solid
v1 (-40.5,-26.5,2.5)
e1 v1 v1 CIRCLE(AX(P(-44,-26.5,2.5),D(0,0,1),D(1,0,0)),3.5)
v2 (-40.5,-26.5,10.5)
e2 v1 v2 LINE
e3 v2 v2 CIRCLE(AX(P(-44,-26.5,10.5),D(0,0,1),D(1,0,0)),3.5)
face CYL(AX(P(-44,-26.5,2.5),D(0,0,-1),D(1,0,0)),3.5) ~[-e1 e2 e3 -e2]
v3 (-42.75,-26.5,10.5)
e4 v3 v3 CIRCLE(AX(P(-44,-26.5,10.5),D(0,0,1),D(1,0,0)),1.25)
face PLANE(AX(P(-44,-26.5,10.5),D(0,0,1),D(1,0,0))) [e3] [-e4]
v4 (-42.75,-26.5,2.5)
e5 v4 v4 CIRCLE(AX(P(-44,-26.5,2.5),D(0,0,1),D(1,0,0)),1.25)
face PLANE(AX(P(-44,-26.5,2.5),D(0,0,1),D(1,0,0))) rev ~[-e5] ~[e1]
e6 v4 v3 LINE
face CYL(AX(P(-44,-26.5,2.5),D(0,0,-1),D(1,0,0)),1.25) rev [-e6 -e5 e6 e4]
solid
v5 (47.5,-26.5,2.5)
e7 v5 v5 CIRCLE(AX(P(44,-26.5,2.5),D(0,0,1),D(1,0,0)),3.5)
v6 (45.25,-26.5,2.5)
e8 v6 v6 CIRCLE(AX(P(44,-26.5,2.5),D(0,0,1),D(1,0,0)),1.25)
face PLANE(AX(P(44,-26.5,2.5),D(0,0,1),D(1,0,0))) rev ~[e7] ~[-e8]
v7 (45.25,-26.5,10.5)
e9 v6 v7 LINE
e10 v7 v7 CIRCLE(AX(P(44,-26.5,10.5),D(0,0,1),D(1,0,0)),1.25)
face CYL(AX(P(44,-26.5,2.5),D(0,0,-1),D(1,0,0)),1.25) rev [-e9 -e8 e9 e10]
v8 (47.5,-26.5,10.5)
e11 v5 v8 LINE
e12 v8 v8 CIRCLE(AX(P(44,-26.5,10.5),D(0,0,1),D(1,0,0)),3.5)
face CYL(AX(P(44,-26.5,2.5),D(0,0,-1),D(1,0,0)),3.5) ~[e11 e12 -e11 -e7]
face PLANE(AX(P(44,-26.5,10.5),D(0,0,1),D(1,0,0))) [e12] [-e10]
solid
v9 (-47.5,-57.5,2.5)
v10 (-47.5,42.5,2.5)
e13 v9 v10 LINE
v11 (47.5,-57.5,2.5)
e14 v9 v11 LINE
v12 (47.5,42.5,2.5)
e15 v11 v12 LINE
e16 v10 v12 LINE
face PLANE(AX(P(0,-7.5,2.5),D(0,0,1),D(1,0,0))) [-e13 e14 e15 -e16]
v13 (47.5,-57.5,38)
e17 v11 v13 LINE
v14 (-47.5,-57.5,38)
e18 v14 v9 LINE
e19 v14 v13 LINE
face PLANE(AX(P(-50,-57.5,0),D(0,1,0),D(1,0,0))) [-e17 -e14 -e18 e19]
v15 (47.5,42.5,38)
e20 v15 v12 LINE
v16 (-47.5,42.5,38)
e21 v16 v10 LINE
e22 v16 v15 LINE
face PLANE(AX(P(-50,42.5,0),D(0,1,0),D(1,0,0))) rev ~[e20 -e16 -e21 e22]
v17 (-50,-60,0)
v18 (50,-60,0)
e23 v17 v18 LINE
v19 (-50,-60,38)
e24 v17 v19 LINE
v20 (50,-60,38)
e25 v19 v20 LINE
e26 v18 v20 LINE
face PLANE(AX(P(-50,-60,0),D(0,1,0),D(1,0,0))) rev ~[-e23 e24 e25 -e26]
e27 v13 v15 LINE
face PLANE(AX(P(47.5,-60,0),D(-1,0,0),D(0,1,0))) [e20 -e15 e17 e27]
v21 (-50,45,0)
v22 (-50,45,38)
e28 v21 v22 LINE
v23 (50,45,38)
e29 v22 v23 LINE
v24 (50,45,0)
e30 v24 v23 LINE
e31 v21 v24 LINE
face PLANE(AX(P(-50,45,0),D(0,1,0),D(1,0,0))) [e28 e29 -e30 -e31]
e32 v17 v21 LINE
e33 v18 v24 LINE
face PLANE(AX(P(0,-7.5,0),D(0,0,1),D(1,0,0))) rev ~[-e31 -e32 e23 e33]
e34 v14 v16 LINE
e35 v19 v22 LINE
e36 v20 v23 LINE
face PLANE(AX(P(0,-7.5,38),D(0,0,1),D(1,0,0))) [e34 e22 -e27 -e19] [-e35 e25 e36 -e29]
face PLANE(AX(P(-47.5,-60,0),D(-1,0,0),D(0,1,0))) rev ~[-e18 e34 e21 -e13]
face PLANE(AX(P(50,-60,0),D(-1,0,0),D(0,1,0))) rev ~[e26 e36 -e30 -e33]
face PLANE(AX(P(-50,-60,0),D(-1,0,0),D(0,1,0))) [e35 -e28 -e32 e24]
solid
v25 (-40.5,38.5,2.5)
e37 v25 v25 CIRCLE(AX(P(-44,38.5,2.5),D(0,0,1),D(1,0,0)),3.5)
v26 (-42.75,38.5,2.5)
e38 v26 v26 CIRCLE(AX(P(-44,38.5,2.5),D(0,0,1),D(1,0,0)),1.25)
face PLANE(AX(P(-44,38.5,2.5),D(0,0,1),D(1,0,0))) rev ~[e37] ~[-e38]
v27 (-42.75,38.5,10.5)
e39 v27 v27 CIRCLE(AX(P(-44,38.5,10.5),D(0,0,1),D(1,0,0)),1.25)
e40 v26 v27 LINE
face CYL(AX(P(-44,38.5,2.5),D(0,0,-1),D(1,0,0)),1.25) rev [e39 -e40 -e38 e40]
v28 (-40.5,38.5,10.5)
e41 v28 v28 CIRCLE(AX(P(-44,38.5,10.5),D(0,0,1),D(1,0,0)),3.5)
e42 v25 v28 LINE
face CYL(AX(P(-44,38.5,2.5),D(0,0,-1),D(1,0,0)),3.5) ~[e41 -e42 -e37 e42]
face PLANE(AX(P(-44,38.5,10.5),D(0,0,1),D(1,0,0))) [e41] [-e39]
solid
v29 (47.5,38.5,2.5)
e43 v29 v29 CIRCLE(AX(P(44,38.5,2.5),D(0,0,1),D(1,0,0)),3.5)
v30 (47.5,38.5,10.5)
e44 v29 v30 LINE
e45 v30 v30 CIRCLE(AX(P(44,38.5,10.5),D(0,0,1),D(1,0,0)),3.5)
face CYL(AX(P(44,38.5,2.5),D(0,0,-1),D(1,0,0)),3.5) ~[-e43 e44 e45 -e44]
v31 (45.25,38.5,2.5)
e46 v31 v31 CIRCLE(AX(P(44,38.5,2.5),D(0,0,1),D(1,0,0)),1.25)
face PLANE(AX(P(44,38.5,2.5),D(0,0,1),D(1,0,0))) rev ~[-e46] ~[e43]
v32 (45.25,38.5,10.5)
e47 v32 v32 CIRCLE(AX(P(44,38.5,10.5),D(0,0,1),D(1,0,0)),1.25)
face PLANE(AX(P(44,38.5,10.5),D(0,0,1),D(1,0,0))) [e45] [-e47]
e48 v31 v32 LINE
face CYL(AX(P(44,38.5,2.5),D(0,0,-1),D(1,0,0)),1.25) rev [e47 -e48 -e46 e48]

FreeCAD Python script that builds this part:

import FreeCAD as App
import Part
import Sketcher
from FreeCAD import Vector
Q = App.Units.Quantity


def faces_at(feature, points):
    """Names of the faces that lie closest to the given points."""
    faces = feature.Shape.Faces
    near = lambda p: min(range(len(faces)), key=lambda i: faces[i].distToShape(Part.Vertex(*p))[0])
    return sorted({f"Face{near(p) + 1}" for p in points})


def add_polygon(sketch, points):
    """Adds a closed chain of lines whose ends are joined by coincident constraints."""
    first, n = sketch.GeometryCount, len(points)
    for a, b in zip(points, points[1:] + points[:1]):
        sketch.addGeometry(Part.LineSegment(App.Vector(*a, 0), App.Vector(*b, 0)), False)
    for i in range(n):
        sketch.addConstraint(Sketcher.Constraint("Coincident", first + i, 2, first + (i + 1) % n, 1))

doc = App.newDocument("Part")
body = doc.addObject("PartDesign::Body", "Body")

sketch1 = doc.addObject("Sketcher::SketchObject", "Sketch")
body.addObject(sketch1)
sketch1.AttachmentSupport = (doc.XY_Plane, [""])
sketch1.MapMode = "FlatFace"
add_polygon(sketch1, [(-50, 45), (-50, -60), (50, -60), (50, 45)])
sketch1.addConstraint([
    Sketcher.Constraint("Vertical", 0),
    Sketcher.Constraint("Horizontal", 1),
    Sketcher.Constraint("Vertical", 2),
    Sketcher.Constraint("Horizontal", 3),
    Sketcher.Constraint("DistanceX", 1, 1, 1, 2, Q("100 mm")),
    Sketcher.Constraint("DistanceY", 0, 2, 0, 1, Q("105 mm")),
    Sketcher.Constraint("DistanceX", 0, 2, -1, 1, Q("50 mm")),
    Sketcher.Constraint("DistanceY", 0, 2, -1, 1, Q("60 mm")),
])
pad1 = doc.addObject("PartDesign::Pad", "Pad")
body.addObject(pad1)
pad1.Profile = sketch1
pad1.Length = 38
doc.recompute()

thickness = doc.addObject("PartDesign::Thickness", "Thickness")
body.addObject(thickness)
thickness.Base = (pad1, faces_at(pad1, [(0, -7.5, 38)]))
thickness.Value = 2.5
thickness.Reversed = True
thickness.Join = "Arc"
body2 = doc.addObject("PartDesign::Body", "Body001")

sketch2 = doc.addObject("Sketcher::SketchObject", "Sketch001")
body2.addObject(sketch2)
sketch2.AttachmentSupport = (doc.getObject("XY_Plane001"), [""])
sketch2.MapMode = "FlatFace"
sketch2.AttachmentOffset = App.Placement(Vector(0, 0, 2.5), App.Rotation())
sketch2.addGeometry([
    Part.Circle(Vector(44, 38.5, 0), Vector(0, 0, 1), 3.5),
    Part.Circle(Vector(44, 38.5, 0), Vector(0, 0, 1), 1.25),
], False)
sketch2.addConstraint([
    Sketcher.Constraint("Coincident", 1, 3, 0, 3),
    Sketcher.Constraint("Diameter", 0, Q("7 mm")),
    Sketcher.Constraint("Diameter", 1, Q("2.5 mm")),
    Sketcher.Constraint("DistanceX", -1, 1, 0, 3, Q("44 mm")),
    Sketcher.Constraint("DistanceY", -1, 1, 0, 3, Q("38.5 mm")),
])
pad2 = doc.addObject("PartDesign::Pad", "Pad001")
body2.addObject(pad2)
pad2.Profile = sketch2
pad2.Length = 8
body3 = doc.addObject("PartDesign::Body", "Body002")

sketch3 = doc.addObject("Sketcher::SketchObject", "Sketch002")
body3.addObject(sketch3)
sketch3.AttachmentSupport = (doc.getObject("XY_Plane002"), [""])
sketch3.MapMode = "FlatFace"
sketch3.AttachmentOffset = App.Placement(Vector(0, 0, 2.5), App.Rotation())
sketch3.addGeometry([
    Part.Circle(Vector(-44, 38.5, 0), Vector(0, 0, 1), 3.5),
    Part.Circle(Vector(-44, 38.5, 0), Vector(0, 0, 1), 1.25),
], False)
sketch3.addConstraint([
    Sketcher.Constraint("Coincident", 1, 3, 0, 3),
    Sketcher.Constraint("Diameter", 0, Q("7 mm")),
    Sketcher.Constraint("Diameter", 1, Q("2.5 mm")),
    Sketcher.Constraint("DistanceX", 0, 3, -1, 1, Q("44 mm")),
    Sketcher.Constraint("DistanceY", -1, 1, 0, 3, Q("38.5 mm")),
])
pad3 = doc.addObject("PartDesign::Pad", "Pad002")
body3.addObject(pad3)
pad3.Profile = sketch3
pad3.Length = 8
body4 = doc.addObject("PartDesign::Body", "Body003")

sketch4 = doc.addObject("Sketcher::SketchObject", "Sketch003")
body4.addObject(sketch4)
sketch4.AttachmentSupport = (doc.getObject("XY_Plane003"), [""])
sketch4.MapMode = "FlatFace"
sketch4.AttachmentOffset = App.Placement(Vector(0, 0, 2.5), App.Rotation())
sketch4.addGeometry([
    Part.Circle(Vector(-44, -26.5, 0), Vector(0, 0, 1), 3.5),
    Part.Circle(Vector(-44, -26.5, 0), Vector(0, 0, 1), 1.25),
], False)
sketch4.addConstraint([
    Sketcher.Constraint("Coincident", 1, 3, 0, 3),
    Sketcher.Constraint("Diameter", 0, Q("7 mm")),
    Sketcher.Constraint("Diameter", 1, Q("2.5 mm")),
    Sketcher.Constraint("DistanceX", 0, 3, -1, 1, Q("44 mm")),
    Sketcher.Constraint("DistanceY", 0, 3, -1, 1, Q("26.5 mm")),
])
pad4 = doc.addObject("PartDesign::Pad", "Pad003")
body4.addObject(pad4)
pad4.Profile = sketch4
pad4.Length = 8
body5 = doc.addObject("PartDesign::Body", "Body004")

sketch5 = doc.addObject("Sketcher::SketchObject", "Sketch004")
body5.addObject(sketch5)
sketch5.AttachmentSupport = (doc.getObject("XY_Plane004"), [""])
sketch5.MapMode = "FlatFace"
sketch5.AttachmentOffset = App.Placement(Vector(0, 0, 2.5), App.Rotation())
sketch5.addGeometry([
    Part.Circle(Vector(44, -26.5, 0), Vector(0, 0, 1), 3.5),
    Part.Circle(Vector(44, -26.5, 0), Vector(0, 0, 1), 1.25),
], False)
sketch5.addConstraint([
    Sketcher.Constraint("Coincident", 1, 3, 0, 3),
    Sketcher.Constraint("Diameter", 0, Q("7 mm")),
    Sketcher.Constraint("Diameter", 1, Q("2.5 mm")),
    Sketcher.Constraint("DistanceX", -1, 1, 0, 3, Q("44 mm")),
    Sketcher.Constraint("DistanceY", 0, 3, -1, 1, Q("26.5 mm")),
])
pad5 = doc.addObject("PartDesign::Pad", "Pad004")
body5.addObject(pad5)
pad5.Profile = sketch5
pad5.Length = 8

doc.recompute()
